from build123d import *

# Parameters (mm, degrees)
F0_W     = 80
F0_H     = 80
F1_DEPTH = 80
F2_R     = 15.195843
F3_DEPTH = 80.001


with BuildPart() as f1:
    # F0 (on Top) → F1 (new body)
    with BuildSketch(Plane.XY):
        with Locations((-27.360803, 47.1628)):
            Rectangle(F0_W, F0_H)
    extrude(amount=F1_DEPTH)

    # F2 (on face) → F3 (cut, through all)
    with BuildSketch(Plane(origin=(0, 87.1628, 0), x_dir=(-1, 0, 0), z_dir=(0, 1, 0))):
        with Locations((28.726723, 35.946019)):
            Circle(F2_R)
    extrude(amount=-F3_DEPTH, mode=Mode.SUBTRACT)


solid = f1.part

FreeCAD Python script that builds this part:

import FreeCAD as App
import Part
import Sketcher


def add_polygon(sketch, points):
    """Adds a closed chain of lines whose ends are joined by coincident constraints."""
    first, n = sketch.GeometryCount, len(points)
    for a, b in zip(points, points[1:] + points[:1]):
        sketch.addGeometry(Part.LineSegment(App.Vector(*a, 0), App.Vector(*b, 0)), False)
    for i in range(n):
        sketch.addConstraint(Sketcher.Constraint("Coincident", first + i, 2, first + (i + 1) % n, 1))

doc = App.newDocument("Part")
body = doc.addObject("PartDesign::Body", "Body")

# Sketch on XY plane
sketch1 = doc.addObject("Sketcher::SketchObject", "Sketch")
body.addObject(sketch1)
sketch1.AttachmentSupport = (doc.XY_Plane, [""])
sketch1.MapMode = "FlatFace"
add_polygon(sketch1, [(-67, 87), (-67, 7), (13, 7), (13, 87)])  # lines 0-3
sketch1.addConstraint(Sketcher.Constraint("Vertical", 0))
sketch1.addConstraint(Sketcher.Constraint("Horizontal", 1))
sketch1.addConstraint(Sketcher.Constraint("Vertical", 2))
sketch1.addConstraint(Sketcher.Constraint("Horizontal", 3))
sketch1.addConstraint(Sketcher.Constraint("Equal", 3, 0))
sketch1.addConstraint(Sketcher.Constraint("DistanceX", 1, 1, 1, 2, 80.0))
sketch1.addConstraint(Sketcher.Constraint("DistanceY", -1, 1, 0, 2, 7.1628))
sketch1.addConstraint(Sketcher.Constraint("DistanceX", 0, 2, -1, 1, 67.360803))
pad1 = doc.addObject("PartDesign::Pad", "Pad")
body.addObject(pad1)
pad1.Profile = sketch1
pad1.Length = 80

# Sketch on XZ plane
sketch2 = doc.addObject("Sketcher::SketchObject", "Sketch001")
body.addObject(sketch2)
sketch2.AttachmentSupport = (doc.XZ_Plane, [""])
sketch2.MapMode = "FlatFace"
sketch2.AttachmentOffset = App.Placement(App.Vector(0, 0, -87.1628), App.Rotation())
sketch2.addGeometry(Part.Circle(App.Vector(-29, 36, 0), App.Vector(0, 0, 1), 15), False)
sketch2.addConstraint(Sketcher.Constraint("Diameter", 0, 30.391686))
sketch2.addConstraint(Sketcher.Constraint("DistanceY", -1, 1, 0, 3, 35.946019))
sketch2.addConstraint(Sketcher.Constraint("DistanceX", 0, 3, -1, 1, 28.726723))
pocket1 = doc.addObject("PartDesign::Pocket", "Pocket")
body.addObject(pocket1)
pocket1.Profile = sketch2
pocket1.Type = "ThroughAll"
pocket1.Reversed = True

doc.recompute()
